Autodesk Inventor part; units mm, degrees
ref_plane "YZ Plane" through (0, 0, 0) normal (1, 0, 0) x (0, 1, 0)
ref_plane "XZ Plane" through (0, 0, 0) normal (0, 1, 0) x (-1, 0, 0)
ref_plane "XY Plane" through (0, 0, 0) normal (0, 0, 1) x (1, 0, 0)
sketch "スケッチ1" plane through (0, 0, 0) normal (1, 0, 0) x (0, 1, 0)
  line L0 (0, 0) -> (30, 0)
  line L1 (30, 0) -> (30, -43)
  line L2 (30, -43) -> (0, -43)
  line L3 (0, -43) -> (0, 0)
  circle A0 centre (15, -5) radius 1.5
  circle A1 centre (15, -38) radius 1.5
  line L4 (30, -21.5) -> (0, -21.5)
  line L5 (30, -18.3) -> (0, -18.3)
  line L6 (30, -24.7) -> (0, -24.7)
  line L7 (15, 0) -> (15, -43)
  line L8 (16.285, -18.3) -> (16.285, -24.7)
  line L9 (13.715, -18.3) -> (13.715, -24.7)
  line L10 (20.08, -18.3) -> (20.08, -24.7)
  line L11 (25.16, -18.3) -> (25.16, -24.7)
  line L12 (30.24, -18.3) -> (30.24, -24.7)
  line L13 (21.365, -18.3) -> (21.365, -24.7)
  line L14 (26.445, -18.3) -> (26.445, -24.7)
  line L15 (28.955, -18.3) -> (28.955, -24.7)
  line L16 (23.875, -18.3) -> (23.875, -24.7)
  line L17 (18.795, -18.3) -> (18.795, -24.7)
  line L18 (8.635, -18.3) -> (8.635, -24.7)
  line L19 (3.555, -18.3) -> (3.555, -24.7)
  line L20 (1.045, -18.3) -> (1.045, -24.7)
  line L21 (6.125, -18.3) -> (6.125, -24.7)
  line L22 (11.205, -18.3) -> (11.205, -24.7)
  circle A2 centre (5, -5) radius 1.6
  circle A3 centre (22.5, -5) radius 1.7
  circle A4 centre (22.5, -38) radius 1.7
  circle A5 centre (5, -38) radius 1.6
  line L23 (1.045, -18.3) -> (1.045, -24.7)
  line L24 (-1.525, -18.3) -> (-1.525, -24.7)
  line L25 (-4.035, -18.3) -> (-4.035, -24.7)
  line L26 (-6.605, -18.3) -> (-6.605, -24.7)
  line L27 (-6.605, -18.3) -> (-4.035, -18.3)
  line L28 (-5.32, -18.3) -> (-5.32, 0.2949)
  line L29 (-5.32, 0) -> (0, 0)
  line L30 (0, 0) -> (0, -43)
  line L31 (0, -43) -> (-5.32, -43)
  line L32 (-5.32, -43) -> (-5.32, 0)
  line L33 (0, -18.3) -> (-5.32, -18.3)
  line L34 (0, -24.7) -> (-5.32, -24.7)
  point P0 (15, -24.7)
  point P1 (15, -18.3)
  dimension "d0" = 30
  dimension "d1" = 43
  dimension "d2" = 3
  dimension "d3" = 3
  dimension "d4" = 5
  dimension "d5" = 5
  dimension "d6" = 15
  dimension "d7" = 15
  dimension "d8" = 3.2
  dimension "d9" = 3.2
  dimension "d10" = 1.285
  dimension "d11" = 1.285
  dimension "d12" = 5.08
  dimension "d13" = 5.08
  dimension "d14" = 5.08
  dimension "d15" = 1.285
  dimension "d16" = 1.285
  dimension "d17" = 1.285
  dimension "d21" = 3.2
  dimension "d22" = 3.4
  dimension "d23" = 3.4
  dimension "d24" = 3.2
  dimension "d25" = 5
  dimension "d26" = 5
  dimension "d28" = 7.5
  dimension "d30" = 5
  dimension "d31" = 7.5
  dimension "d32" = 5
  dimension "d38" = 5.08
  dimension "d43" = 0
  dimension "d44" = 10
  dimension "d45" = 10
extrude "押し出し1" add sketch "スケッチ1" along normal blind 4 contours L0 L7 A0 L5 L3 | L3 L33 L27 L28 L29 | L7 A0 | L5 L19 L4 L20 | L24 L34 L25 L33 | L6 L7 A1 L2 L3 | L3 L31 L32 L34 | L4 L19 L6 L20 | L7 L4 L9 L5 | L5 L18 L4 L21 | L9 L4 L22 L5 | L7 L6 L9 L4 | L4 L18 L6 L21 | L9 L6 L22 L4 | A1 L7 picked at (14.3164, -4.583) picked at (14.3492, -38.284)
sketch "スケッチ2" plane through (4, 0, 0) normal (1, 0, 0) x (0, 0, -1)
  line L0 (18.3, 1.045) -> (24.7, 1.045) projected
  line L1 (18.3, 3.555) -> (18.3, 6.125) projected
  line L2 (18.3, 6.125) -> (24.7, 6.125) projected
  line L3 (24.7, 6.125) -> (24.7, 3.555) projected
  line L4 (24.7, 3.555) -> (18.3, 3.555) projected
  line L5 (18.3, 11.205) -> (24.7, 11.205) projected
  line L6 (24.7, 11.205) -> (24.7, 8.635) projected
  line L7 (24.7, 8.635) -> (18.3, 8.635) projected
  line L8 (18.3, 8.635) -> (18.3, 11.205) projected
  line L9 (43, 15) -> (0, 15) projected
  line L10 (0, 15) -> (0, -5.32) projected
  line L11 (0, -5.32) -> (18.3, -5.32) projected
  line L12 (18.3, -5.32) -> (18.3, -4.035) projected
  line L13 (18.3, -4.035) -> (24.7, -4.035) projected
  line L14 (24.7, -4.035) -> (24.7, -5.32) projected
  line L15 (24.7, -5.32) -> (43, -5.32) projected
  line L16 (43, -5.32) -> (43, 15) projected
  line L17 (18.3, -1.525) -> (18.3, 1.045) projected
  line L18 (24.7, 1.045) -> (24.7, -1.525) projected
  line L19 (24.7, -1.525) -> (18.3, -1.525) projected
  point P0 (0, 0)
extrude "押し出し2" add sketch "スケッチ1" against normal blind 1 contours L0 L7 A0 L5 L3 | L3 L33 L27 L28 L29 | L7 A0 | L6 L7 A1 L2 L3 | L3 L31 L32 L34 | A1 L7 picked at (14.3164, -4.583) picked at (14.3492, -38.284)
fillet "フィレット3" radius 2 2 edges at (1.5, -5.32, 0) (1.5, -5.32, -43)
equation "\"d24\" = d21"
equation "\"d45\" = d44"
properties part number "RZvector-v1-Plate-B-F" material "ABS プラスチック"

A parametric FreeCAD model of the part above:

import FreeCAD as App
import Part
import Sketcher
Q = App.Units.Quantity


def edges_at(feature, points):
    """Names of the edges that pass closest to the given points."""
    edges = feature.Shape.Edges
    near = lambda p: min(range(len(edges)), key=lambda i: edges[i].distToShape(Part.Vertex(*p))[0])
    return sorted({f"Edge{near(p) + 1}" for p in points})


def add_polygon(sketch, points):
    """Adds a closed chain of lines whose ends are joined by coincident constraints."""
    first, n = sketch.GeometryCount, len(points)
    for a, b in zip(points, points[1:] + points[:1]):
        sketch.addGeometry(Part.LineSegment(App.Vector(*a, 0), App.Vector(*b, 0)), False)
    for i in range(n):
        sketch.addConstraint(Sketcher.Constraint("Coincident", first + i, 2, first + (i + 1) % n, 1))

doc = App.newDocument("Part")
body = doc.addObject("PartDesign::Body", "Body")

# Sketch on YZ plane
sketch1 = body.newObject("Sketcher::SketchObject", "Sketch")
sketch1.AttachmentSupport = (doc.getObject("YZ_Plane"), [""])
sketch1.MapMode = "FlatFace"
add_polygon(sketch1, [(15, 0), (-5.3, 0), (-5.3, -18.3), (-4, -18.3), (-4, -24.7), (-5.3, -24.7), (-5.3, -43), (15, -43)])  # lines 0-7
add_polygon(sketch1, [(8.6, -18.3), (11.2, -18.3), (11.2, -24.7), (8.6, -24.7)])  # lines 8-11
add_polygon(sketch1, [(3.6, -18.3), (6.1, -18.3), (6.1, -24.7), (3.6, -24.7)])  # lines 12-15
add_polygon(sketch1, [(1, -18.3), (1, -24.7), (-1.5, -24.7), (-1.5, -18.3)])  # lines 16-19
sketch1.addGeometry(Part.Circle(App.Vector(5, -5, 0), App.Vector(0, 0, 1), 1.6), False)  # 20
sketch1.addGeometry(Part.Circle(App.Vector(5, -38, 0), App.Vector(0, 0, 1), 1.6), False)  # 21
sketch1.addConstraint(Sketcher.Constraint("Horizontal", 0))
sketch1.addConstraint(Sketcher.Constraint("Vertical", 1))
sketch1.addConstraint(Sketcher.Constraint("Horizontal", 2))
sketch1.addConstraint(Sketcher.Constraint("Vertical", 3))
sketch1.addConstraint(Sketcher.Constraint("Horizontal", 4))
sketch1.addConstraint(Sketcher.Constraint("Vertical", 5))
sketch1.addConstraint(Sketcher.Constraint("Horizontal", 6))
sketch1.addConstraint(Sketcher.Constraint("Vertical", 7))
sketch1.addConstraint(Sketcher.Constraint("Horizontal", 8))
sketch1.addConstraint(Sketcher.Constraint("Vertical", 9))
sketch1.addConstraint(Sketcher.Constraint("Horizontal", 10))
sketch1.addConstraint(Sketcher.Constraint("Vertical", 11))
sketch1.addConstraint(Sketcher.Constraint("Horizontal", 12))
sketch1.addConstraint(Sketcher.Constraint("Vertical", 13))
sketch1.addConstraint(Sketcher.Constraint("Horizontal", 14))
sketch1.addConstraint(Sketcher.Constraint("Vertical", 15))
sketch1.addConstraint(Sketcher.Constraint("Vertical", 16))
sketch1.addConstraint(Sketcher.Constraint("Horizontal", 17))
sketch1.addConstraint(Sketcher.Constraint("Vertical", 18))
sketch1.addConstraint(Sketcher.Constraint("Horizontal", 19))
sketch1.addConstraint(Sketcher.Constraint("Equal", 20, 21))
sketch1.addConstraint(Sketcher.Constraint("PointOnObject", 0, 2, -1))
sketch1.addConstraint(Sketcher.Constraint("Horizontal", 2, 2, 8, 2))
sketch1.addConstraint(Sketcher.Constraint("Horizontal", 4, 2, 9, 2))
sketch1.addConstraint(Sketcher.Constraint("Horizontal", 11, 2, 12, 2))
sketch1.addConstraint(Sketcher.Constraint("Horizontal", 10, 2, 13, 2))
sketch1.addConstraint(Sketcher.Constraint("Horizontal", 14, 2, 16, 2))
sketch1.addConstraint(Sketcher.Constraint("Horizontal", 15, 2, 18, 2))
sketch1.addConstraint(Sketcher.Constraint("Vertical", 20, 3, 21, 3))
sketch1.addConstraint(Sketcher.Constraint("Vertical", 1, 2, 4, 2))
sketch1.addConstraint(Sketcher.Constraint("Equal", 10, 12))
sketch1.addConstraint(Sketcher.Constraint("Equal", 14, 17))
sketch1.addConstraint(Sketcher.Constraint("Equal", 1, 5))
sketch1.addConstraint(Sketcher.Constraint("Diameter", 20, Q("3.2 mm")))
sketch1.addConstraint(Sketcher.Constraint("DistanceY", 7, 1, 7, 2, Q("43 mm")))
sketch1.addConstraint(Sketcher.Constraint("DistanceX", -1, 1, 20, 3, Q("5 mm")))
sketch1.addConstraint(Sketcher.Constraint("DistanceY", 20, 3, -1, 1, Q("5 mm")))
sketch1.addConstraint(Sketcher.Constraint("DistanceX", -1, 1, 6, 2, Q("15 mm")))
sketch1.addConstraint(Sketcher.Constraint("DistanceY", 5, 2, 21, 3, Q("5 mm")))
sketch1.addConstraint(Sketcher.Constraint("DistanceX", 2, 1, 2, 2, Q("1.285 mm")))
sketch1.addConstraint(Sketcher.Constraint("DistanceX", 12, 2, 8, 2, Q("5.08 mm")))
sketch1.addConstraint(Sketcher.Constraint("DistanceX", 3, 2, 16, 2, Q("5.08 mm")))
sketch1.addConstraint(Sketcher.Constraint("DistanceX", 16, 2, 13, 2, Q("5.08 mm")))
sketch1.addConstraint(Sketcher.Constraint("DistanceY", 1, 2, 1, 1, Q("18.3 mm")))
sketch1.addConstraint(Sketcher.Constraint("DistanceX", 0, 2, 0, 1, Q("20.32 mm")))
sketch1.addConstraint(Sketcher.Constraint("DistanceX", 8, 1, 8, 2, Q("2.57 mm")))
pad1 = body.newObject("PartDesign::Pad", "Pad")
pad1.Profile = sketch1
pad1.Length = 4

# Sketch on YZ plane
sketch2 = body.newObject("Sketcher::SketchObject", "Sketch001")
sketch2.AttachmentSupport = (doc.getObject("YZ_Plane"), [""])
sketch2.MapMode = "FlatFace"
add_polygon(sketch2, [(15, 0), (-5.3, 0), (-5.3, -18.3), (15, -18.3)])  # lines 0-3
sketch2.addGeometry(Part.Circle(App.Vector(5, -5, 0), App.Vector(0, 0, 1), 1.6), False)  # 4
add_polygon(sketch2, [(-5.3, -24.7), (-5.3, -43), (15, -43), (15, -24.7)])  # lines 5-8
sketch2.addGeometry(Part.Circle(App.Vector(5, -38, 0), App.Vector(0, 0, 1), 1.6), False)  # 9
sketch2.addConstraint(Sketcher.Constraint("Horizontal", 0))
sketch2.addConstraint(Sketcher.Constraint("Vertical", 1))
sketch2.addConstraint(Sketcher.Constraint("Horizontal", 2))
sketch2.addConstraint(Sketcher.Constraint("Vertical", 3))
sketch2.addConstraint(Sketcher.Constraint("Vertical", 5))
sketch2.addConstraint(Sketcher.Constraint("Horizontal", 6))
sketch2.addConstraint(Sketcher.Constraint("Vertical", 7))
sketch2.addConstraint(Sketcher.Constraint("Horizontal", 8))
sketch2.addConstraint(Sketcher.Constraint("Equal", 4, 9))
sketch2.addConstraint(Sketcher.Constraint("PointOnObject", 0, 2, -1))
sketch2.addConstraint(Sketcher.Constraint("Vertical", 4, 3, 9, 3))
sketch2.addConstraint(Sketcher.Constraint("Vertical", 1, 2, 5, 2))
sketch2.addConstraint(Sketcher.Constraint("Vertical", 3, 2, 6, 2))
sketch2.addConstraint(Sketcher.Constraint("Equal", 3, 5))
sketch2.addConstraint(Sketcher.Constraint("Diameter", 4, Q("3.2 mm")))
sketch2.addConstraint(Sketcher.Constraint("DistanceX", -1, 1, 4, 3, Q("5 mm")))
sketch2.addConstraint(Sketcher.Constraint("DistanceY", 4, 3, -1, 1, Q("5 mm")))
sketch2.addConstraint(Sketcher.Constraint("DistanceX", -1, 1, 2, 2, Q("15 mm")))
sketch2.addConstraint(Sketcher.Constraint("DistanceY", 5, 2, -1, 1, Q("43 mm")))
sketch2.addConstraint(Sketcher.Constraint("DistanceY", 5, 2, 9, 3, Q("5 mm")))
sketch2.addConstraint(Sketcher.Constraint("DistanceY", 1, 2, 1, 1, Q("18.3 mm")))
sketch2.addConstraint(Sketcher.Constraint("DistanceX", 0, 2, 0, 1, Q("20.32 mm")))
pad2 = body.newObject("PartDesign::Pad", "Pad001")
pad2.Profile = sketch2
pad2.Length = 1
pad2.Reversed = True
doc.recompute()

fillet = body.newObject("PartDesign::Fillet", "Fillet")
fillet.Base = (pad2, edges_at(pad2, [(1.5, -5.32, 0), (1.5, -5.32, -43)]))
fillet.Radius = 2

doc.recompute()
